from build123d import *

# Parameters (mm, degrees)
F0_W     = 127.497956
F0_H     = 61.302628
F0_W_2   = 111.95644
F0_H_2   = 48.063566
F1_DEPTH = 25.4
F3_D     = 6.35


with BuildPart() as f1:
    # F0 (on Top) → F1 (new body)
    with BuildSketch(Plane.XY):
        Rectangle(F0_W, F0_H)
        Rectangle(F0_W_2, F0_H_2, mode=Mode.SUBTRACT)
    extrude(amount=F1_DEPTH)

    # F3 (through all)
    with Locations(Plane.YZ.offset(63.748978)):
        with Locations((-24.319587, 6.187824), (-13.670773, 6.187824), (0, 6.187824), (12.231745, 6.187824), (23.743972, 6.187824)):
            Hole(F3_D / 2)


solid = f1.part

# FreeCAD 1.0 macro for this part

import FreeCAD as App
import Part
import Sketcher
from FreeCAD import Vector
Q = App.Units.Quantity


def add_polygon(sketch, points):
    """Adds a closed chain of lines whose ends are joined by coincident constraints."""
    first, n = sketch.GeometryCount, len(points)
    for a, b in zip(points, points[1:] + points[:1]):
        sketch.addGeometry(Part.LineSegment(App.Vector(*a, 0), App.Vector(*b, 0)), False)
    for i in range(n):
        sketch.addConstraint(Sketcher.Constraint("Coincident", first + i, 2, first + (i + 1) % n, 1))

doc = App.newDocument("Part")
body = doc.addObject("PartDesign::Body", "Body")

sketch1 = body.newObject("Sketcher::SketchObject", "Sketch")
sketch1.AttachmentSupport = (doc.getObject("XY_Plane"), [""])
sketch1.MapMode = "FlatFace"
add_polygon(sketch1, [(-63.748978, 30.651314), (-63.748978, -30.651314), (63.748978, -30.651314), (63.748978, 30.651314)])
add_polygon(sketch1, [(55.97822, -24.031783), (-55.97822, -24.031783), (-55.97822, 24.031783), (55.97822, 24.031783)])
sketch1.addConstraint(Sketcher.Constraint("Vertical", 0))
sketch1.addConstraint(Sketcher.Constraint("Horizontal", 1))
sketch1.addConstraint(Sketcher.Constraint("Vertical", 2))
sketch1.addConstraint(Sketcher.Constraint("Horizontal", 3))
sketch1.addConstraint(Sketcher.Constraint("Horizontal", 4))
sketch1.addConstraint(Sketcher.Constraint("Vertical", 5))
sketch1.addConstraint(Sketcher.Constraint("Horizontal", 6))
sketch1.addConstraint(Sketcher.Constraint("Vertical", 7))
sketch1.addConstraint(Sketcher.Constraint("Symmetric", 0, 2, 2, 2, -1, 1))
sketch1.addConstraint(Sketcher.Constraint("Symmetric", 4, 2, 6, 2, -1, 1))
sketch1.addConstraint(Sketcher.Constraint("DistanceX", 4, 2, 4, 1, Q("111.95644 mm")))
sketch1.addConstraint(Sketcher.Constraint("DistanceX", 4, 2, 1, 2, Q("119.727198 mm")))
sketch1.addConstraint(Sketcher.Constraint("DistanceY", 0, 2, 0, 1, Q("61.302628 mm")))
sketch1.addConstraint(Sketcher.Constraint("DistanceY", 5, 1, 5, 2, Q("48.063566 mm")))
pad1 = body.newObject("PartDesign::Pad", "Pad")
pad1.Profile = sketch1
pad1.Length = Q("1 in")

sketch2 = body.newObject("Sketcher::SketchObject", "Sketch001")
sketch2.AttachmentSupport = (doc.getObject("YZ_Plane"), [""])
sketch2.MapMode = "FlatFace"
sketch2.AttachmentOffset = App.Placement(Vector(0, 0, 63.748978), App.Rotation())
sketch2.addGeometry(Part.Circle(Vector(-24.319587, 6.187824, 0), Vector(0, 0, 1), 3.175), False)
sketch2.addGeometry(Part.Circle(Vector(-13.670773, 6.187824, 0), Vector(0, 0, 1), 3.175), False)
sketch2.addGeometry(Part.Circle(Vector(0, 6.187824, 0), Vector(0, 0, 1), 3.175), False)
sketch2.addGeometry(Part.Circle(Vector(12.231745, 6.187824, 0), Vector(0, 0, 1), 3.175), False)
sketch2.addGeometry(Part.Circle(Vector(23.743972, 6.187824, 0), Vector(0, 0, 1), 3.175), False)
sketch2.addConstraint(Sketcher.Constraint("Equal", 0, 1))
sketch2.addConstraint(Sketcher.Constraint("Equal", 1, 2))
sketch2.addConstraint(Sketcher.Constraint("Equal", 2, 3))
sketch2.addConstraint(Sketcher.Constraint("Equal", 3, 4))
sketch2.addConstraint(Sketcher.Constraint("PointOnObject", 2, 3, -2))
sketch2.addConstraint(Sketcher.Constraint("Horizontal", 0, 3, 1, 3))
sketch2.addConstraint(Sketcher.Constraint("Horizontal", 1, 3, 2, 3))
sketch2.addConstraint(Sketcher.Constraint("Horizontal", 2, 3, 3, 3))
sketch2.addConstraint(Sketcher.Constraint("Horizontal", 3, 3, 4, 3))
sketch2.addConstraint(Sketcher.Constraint("Diameter", 0, Q("0.25 in")))
sketch2.addConstraint(Sketcher.Constraint("DistanceX", -1, 1, 4, 3, Q("23.743972 mm")))
sketch2.addConstraint(Sketcher.Constraint("DistanceX", 1, 3, 3, 3, Q("25.902518 mm")))
sketch2.addConstraint(Sketcher.Constraint("DistanceX", 0, 3, 4, 3, Q("48.063559 mm")))
sketch2.addConstraint(Sketcher.Constraint("DistanceY", -1, 1, 0, 3, Q("6.187824 mm")))
sketch2.addConstraint(Sketcher.Constraint("DistanceX", 1, 3, -1, 1, Q("13.670773 mm")))
doc.recompute()
hole = body.newObject("PartDesign::Hole", "Hole")
hole.Profile = sketch2
hole.ThreadType = "None"
hole.Diameter = Q("0.25 in")
hole.DepthType = "ThroughAll"

doc.recompute()
